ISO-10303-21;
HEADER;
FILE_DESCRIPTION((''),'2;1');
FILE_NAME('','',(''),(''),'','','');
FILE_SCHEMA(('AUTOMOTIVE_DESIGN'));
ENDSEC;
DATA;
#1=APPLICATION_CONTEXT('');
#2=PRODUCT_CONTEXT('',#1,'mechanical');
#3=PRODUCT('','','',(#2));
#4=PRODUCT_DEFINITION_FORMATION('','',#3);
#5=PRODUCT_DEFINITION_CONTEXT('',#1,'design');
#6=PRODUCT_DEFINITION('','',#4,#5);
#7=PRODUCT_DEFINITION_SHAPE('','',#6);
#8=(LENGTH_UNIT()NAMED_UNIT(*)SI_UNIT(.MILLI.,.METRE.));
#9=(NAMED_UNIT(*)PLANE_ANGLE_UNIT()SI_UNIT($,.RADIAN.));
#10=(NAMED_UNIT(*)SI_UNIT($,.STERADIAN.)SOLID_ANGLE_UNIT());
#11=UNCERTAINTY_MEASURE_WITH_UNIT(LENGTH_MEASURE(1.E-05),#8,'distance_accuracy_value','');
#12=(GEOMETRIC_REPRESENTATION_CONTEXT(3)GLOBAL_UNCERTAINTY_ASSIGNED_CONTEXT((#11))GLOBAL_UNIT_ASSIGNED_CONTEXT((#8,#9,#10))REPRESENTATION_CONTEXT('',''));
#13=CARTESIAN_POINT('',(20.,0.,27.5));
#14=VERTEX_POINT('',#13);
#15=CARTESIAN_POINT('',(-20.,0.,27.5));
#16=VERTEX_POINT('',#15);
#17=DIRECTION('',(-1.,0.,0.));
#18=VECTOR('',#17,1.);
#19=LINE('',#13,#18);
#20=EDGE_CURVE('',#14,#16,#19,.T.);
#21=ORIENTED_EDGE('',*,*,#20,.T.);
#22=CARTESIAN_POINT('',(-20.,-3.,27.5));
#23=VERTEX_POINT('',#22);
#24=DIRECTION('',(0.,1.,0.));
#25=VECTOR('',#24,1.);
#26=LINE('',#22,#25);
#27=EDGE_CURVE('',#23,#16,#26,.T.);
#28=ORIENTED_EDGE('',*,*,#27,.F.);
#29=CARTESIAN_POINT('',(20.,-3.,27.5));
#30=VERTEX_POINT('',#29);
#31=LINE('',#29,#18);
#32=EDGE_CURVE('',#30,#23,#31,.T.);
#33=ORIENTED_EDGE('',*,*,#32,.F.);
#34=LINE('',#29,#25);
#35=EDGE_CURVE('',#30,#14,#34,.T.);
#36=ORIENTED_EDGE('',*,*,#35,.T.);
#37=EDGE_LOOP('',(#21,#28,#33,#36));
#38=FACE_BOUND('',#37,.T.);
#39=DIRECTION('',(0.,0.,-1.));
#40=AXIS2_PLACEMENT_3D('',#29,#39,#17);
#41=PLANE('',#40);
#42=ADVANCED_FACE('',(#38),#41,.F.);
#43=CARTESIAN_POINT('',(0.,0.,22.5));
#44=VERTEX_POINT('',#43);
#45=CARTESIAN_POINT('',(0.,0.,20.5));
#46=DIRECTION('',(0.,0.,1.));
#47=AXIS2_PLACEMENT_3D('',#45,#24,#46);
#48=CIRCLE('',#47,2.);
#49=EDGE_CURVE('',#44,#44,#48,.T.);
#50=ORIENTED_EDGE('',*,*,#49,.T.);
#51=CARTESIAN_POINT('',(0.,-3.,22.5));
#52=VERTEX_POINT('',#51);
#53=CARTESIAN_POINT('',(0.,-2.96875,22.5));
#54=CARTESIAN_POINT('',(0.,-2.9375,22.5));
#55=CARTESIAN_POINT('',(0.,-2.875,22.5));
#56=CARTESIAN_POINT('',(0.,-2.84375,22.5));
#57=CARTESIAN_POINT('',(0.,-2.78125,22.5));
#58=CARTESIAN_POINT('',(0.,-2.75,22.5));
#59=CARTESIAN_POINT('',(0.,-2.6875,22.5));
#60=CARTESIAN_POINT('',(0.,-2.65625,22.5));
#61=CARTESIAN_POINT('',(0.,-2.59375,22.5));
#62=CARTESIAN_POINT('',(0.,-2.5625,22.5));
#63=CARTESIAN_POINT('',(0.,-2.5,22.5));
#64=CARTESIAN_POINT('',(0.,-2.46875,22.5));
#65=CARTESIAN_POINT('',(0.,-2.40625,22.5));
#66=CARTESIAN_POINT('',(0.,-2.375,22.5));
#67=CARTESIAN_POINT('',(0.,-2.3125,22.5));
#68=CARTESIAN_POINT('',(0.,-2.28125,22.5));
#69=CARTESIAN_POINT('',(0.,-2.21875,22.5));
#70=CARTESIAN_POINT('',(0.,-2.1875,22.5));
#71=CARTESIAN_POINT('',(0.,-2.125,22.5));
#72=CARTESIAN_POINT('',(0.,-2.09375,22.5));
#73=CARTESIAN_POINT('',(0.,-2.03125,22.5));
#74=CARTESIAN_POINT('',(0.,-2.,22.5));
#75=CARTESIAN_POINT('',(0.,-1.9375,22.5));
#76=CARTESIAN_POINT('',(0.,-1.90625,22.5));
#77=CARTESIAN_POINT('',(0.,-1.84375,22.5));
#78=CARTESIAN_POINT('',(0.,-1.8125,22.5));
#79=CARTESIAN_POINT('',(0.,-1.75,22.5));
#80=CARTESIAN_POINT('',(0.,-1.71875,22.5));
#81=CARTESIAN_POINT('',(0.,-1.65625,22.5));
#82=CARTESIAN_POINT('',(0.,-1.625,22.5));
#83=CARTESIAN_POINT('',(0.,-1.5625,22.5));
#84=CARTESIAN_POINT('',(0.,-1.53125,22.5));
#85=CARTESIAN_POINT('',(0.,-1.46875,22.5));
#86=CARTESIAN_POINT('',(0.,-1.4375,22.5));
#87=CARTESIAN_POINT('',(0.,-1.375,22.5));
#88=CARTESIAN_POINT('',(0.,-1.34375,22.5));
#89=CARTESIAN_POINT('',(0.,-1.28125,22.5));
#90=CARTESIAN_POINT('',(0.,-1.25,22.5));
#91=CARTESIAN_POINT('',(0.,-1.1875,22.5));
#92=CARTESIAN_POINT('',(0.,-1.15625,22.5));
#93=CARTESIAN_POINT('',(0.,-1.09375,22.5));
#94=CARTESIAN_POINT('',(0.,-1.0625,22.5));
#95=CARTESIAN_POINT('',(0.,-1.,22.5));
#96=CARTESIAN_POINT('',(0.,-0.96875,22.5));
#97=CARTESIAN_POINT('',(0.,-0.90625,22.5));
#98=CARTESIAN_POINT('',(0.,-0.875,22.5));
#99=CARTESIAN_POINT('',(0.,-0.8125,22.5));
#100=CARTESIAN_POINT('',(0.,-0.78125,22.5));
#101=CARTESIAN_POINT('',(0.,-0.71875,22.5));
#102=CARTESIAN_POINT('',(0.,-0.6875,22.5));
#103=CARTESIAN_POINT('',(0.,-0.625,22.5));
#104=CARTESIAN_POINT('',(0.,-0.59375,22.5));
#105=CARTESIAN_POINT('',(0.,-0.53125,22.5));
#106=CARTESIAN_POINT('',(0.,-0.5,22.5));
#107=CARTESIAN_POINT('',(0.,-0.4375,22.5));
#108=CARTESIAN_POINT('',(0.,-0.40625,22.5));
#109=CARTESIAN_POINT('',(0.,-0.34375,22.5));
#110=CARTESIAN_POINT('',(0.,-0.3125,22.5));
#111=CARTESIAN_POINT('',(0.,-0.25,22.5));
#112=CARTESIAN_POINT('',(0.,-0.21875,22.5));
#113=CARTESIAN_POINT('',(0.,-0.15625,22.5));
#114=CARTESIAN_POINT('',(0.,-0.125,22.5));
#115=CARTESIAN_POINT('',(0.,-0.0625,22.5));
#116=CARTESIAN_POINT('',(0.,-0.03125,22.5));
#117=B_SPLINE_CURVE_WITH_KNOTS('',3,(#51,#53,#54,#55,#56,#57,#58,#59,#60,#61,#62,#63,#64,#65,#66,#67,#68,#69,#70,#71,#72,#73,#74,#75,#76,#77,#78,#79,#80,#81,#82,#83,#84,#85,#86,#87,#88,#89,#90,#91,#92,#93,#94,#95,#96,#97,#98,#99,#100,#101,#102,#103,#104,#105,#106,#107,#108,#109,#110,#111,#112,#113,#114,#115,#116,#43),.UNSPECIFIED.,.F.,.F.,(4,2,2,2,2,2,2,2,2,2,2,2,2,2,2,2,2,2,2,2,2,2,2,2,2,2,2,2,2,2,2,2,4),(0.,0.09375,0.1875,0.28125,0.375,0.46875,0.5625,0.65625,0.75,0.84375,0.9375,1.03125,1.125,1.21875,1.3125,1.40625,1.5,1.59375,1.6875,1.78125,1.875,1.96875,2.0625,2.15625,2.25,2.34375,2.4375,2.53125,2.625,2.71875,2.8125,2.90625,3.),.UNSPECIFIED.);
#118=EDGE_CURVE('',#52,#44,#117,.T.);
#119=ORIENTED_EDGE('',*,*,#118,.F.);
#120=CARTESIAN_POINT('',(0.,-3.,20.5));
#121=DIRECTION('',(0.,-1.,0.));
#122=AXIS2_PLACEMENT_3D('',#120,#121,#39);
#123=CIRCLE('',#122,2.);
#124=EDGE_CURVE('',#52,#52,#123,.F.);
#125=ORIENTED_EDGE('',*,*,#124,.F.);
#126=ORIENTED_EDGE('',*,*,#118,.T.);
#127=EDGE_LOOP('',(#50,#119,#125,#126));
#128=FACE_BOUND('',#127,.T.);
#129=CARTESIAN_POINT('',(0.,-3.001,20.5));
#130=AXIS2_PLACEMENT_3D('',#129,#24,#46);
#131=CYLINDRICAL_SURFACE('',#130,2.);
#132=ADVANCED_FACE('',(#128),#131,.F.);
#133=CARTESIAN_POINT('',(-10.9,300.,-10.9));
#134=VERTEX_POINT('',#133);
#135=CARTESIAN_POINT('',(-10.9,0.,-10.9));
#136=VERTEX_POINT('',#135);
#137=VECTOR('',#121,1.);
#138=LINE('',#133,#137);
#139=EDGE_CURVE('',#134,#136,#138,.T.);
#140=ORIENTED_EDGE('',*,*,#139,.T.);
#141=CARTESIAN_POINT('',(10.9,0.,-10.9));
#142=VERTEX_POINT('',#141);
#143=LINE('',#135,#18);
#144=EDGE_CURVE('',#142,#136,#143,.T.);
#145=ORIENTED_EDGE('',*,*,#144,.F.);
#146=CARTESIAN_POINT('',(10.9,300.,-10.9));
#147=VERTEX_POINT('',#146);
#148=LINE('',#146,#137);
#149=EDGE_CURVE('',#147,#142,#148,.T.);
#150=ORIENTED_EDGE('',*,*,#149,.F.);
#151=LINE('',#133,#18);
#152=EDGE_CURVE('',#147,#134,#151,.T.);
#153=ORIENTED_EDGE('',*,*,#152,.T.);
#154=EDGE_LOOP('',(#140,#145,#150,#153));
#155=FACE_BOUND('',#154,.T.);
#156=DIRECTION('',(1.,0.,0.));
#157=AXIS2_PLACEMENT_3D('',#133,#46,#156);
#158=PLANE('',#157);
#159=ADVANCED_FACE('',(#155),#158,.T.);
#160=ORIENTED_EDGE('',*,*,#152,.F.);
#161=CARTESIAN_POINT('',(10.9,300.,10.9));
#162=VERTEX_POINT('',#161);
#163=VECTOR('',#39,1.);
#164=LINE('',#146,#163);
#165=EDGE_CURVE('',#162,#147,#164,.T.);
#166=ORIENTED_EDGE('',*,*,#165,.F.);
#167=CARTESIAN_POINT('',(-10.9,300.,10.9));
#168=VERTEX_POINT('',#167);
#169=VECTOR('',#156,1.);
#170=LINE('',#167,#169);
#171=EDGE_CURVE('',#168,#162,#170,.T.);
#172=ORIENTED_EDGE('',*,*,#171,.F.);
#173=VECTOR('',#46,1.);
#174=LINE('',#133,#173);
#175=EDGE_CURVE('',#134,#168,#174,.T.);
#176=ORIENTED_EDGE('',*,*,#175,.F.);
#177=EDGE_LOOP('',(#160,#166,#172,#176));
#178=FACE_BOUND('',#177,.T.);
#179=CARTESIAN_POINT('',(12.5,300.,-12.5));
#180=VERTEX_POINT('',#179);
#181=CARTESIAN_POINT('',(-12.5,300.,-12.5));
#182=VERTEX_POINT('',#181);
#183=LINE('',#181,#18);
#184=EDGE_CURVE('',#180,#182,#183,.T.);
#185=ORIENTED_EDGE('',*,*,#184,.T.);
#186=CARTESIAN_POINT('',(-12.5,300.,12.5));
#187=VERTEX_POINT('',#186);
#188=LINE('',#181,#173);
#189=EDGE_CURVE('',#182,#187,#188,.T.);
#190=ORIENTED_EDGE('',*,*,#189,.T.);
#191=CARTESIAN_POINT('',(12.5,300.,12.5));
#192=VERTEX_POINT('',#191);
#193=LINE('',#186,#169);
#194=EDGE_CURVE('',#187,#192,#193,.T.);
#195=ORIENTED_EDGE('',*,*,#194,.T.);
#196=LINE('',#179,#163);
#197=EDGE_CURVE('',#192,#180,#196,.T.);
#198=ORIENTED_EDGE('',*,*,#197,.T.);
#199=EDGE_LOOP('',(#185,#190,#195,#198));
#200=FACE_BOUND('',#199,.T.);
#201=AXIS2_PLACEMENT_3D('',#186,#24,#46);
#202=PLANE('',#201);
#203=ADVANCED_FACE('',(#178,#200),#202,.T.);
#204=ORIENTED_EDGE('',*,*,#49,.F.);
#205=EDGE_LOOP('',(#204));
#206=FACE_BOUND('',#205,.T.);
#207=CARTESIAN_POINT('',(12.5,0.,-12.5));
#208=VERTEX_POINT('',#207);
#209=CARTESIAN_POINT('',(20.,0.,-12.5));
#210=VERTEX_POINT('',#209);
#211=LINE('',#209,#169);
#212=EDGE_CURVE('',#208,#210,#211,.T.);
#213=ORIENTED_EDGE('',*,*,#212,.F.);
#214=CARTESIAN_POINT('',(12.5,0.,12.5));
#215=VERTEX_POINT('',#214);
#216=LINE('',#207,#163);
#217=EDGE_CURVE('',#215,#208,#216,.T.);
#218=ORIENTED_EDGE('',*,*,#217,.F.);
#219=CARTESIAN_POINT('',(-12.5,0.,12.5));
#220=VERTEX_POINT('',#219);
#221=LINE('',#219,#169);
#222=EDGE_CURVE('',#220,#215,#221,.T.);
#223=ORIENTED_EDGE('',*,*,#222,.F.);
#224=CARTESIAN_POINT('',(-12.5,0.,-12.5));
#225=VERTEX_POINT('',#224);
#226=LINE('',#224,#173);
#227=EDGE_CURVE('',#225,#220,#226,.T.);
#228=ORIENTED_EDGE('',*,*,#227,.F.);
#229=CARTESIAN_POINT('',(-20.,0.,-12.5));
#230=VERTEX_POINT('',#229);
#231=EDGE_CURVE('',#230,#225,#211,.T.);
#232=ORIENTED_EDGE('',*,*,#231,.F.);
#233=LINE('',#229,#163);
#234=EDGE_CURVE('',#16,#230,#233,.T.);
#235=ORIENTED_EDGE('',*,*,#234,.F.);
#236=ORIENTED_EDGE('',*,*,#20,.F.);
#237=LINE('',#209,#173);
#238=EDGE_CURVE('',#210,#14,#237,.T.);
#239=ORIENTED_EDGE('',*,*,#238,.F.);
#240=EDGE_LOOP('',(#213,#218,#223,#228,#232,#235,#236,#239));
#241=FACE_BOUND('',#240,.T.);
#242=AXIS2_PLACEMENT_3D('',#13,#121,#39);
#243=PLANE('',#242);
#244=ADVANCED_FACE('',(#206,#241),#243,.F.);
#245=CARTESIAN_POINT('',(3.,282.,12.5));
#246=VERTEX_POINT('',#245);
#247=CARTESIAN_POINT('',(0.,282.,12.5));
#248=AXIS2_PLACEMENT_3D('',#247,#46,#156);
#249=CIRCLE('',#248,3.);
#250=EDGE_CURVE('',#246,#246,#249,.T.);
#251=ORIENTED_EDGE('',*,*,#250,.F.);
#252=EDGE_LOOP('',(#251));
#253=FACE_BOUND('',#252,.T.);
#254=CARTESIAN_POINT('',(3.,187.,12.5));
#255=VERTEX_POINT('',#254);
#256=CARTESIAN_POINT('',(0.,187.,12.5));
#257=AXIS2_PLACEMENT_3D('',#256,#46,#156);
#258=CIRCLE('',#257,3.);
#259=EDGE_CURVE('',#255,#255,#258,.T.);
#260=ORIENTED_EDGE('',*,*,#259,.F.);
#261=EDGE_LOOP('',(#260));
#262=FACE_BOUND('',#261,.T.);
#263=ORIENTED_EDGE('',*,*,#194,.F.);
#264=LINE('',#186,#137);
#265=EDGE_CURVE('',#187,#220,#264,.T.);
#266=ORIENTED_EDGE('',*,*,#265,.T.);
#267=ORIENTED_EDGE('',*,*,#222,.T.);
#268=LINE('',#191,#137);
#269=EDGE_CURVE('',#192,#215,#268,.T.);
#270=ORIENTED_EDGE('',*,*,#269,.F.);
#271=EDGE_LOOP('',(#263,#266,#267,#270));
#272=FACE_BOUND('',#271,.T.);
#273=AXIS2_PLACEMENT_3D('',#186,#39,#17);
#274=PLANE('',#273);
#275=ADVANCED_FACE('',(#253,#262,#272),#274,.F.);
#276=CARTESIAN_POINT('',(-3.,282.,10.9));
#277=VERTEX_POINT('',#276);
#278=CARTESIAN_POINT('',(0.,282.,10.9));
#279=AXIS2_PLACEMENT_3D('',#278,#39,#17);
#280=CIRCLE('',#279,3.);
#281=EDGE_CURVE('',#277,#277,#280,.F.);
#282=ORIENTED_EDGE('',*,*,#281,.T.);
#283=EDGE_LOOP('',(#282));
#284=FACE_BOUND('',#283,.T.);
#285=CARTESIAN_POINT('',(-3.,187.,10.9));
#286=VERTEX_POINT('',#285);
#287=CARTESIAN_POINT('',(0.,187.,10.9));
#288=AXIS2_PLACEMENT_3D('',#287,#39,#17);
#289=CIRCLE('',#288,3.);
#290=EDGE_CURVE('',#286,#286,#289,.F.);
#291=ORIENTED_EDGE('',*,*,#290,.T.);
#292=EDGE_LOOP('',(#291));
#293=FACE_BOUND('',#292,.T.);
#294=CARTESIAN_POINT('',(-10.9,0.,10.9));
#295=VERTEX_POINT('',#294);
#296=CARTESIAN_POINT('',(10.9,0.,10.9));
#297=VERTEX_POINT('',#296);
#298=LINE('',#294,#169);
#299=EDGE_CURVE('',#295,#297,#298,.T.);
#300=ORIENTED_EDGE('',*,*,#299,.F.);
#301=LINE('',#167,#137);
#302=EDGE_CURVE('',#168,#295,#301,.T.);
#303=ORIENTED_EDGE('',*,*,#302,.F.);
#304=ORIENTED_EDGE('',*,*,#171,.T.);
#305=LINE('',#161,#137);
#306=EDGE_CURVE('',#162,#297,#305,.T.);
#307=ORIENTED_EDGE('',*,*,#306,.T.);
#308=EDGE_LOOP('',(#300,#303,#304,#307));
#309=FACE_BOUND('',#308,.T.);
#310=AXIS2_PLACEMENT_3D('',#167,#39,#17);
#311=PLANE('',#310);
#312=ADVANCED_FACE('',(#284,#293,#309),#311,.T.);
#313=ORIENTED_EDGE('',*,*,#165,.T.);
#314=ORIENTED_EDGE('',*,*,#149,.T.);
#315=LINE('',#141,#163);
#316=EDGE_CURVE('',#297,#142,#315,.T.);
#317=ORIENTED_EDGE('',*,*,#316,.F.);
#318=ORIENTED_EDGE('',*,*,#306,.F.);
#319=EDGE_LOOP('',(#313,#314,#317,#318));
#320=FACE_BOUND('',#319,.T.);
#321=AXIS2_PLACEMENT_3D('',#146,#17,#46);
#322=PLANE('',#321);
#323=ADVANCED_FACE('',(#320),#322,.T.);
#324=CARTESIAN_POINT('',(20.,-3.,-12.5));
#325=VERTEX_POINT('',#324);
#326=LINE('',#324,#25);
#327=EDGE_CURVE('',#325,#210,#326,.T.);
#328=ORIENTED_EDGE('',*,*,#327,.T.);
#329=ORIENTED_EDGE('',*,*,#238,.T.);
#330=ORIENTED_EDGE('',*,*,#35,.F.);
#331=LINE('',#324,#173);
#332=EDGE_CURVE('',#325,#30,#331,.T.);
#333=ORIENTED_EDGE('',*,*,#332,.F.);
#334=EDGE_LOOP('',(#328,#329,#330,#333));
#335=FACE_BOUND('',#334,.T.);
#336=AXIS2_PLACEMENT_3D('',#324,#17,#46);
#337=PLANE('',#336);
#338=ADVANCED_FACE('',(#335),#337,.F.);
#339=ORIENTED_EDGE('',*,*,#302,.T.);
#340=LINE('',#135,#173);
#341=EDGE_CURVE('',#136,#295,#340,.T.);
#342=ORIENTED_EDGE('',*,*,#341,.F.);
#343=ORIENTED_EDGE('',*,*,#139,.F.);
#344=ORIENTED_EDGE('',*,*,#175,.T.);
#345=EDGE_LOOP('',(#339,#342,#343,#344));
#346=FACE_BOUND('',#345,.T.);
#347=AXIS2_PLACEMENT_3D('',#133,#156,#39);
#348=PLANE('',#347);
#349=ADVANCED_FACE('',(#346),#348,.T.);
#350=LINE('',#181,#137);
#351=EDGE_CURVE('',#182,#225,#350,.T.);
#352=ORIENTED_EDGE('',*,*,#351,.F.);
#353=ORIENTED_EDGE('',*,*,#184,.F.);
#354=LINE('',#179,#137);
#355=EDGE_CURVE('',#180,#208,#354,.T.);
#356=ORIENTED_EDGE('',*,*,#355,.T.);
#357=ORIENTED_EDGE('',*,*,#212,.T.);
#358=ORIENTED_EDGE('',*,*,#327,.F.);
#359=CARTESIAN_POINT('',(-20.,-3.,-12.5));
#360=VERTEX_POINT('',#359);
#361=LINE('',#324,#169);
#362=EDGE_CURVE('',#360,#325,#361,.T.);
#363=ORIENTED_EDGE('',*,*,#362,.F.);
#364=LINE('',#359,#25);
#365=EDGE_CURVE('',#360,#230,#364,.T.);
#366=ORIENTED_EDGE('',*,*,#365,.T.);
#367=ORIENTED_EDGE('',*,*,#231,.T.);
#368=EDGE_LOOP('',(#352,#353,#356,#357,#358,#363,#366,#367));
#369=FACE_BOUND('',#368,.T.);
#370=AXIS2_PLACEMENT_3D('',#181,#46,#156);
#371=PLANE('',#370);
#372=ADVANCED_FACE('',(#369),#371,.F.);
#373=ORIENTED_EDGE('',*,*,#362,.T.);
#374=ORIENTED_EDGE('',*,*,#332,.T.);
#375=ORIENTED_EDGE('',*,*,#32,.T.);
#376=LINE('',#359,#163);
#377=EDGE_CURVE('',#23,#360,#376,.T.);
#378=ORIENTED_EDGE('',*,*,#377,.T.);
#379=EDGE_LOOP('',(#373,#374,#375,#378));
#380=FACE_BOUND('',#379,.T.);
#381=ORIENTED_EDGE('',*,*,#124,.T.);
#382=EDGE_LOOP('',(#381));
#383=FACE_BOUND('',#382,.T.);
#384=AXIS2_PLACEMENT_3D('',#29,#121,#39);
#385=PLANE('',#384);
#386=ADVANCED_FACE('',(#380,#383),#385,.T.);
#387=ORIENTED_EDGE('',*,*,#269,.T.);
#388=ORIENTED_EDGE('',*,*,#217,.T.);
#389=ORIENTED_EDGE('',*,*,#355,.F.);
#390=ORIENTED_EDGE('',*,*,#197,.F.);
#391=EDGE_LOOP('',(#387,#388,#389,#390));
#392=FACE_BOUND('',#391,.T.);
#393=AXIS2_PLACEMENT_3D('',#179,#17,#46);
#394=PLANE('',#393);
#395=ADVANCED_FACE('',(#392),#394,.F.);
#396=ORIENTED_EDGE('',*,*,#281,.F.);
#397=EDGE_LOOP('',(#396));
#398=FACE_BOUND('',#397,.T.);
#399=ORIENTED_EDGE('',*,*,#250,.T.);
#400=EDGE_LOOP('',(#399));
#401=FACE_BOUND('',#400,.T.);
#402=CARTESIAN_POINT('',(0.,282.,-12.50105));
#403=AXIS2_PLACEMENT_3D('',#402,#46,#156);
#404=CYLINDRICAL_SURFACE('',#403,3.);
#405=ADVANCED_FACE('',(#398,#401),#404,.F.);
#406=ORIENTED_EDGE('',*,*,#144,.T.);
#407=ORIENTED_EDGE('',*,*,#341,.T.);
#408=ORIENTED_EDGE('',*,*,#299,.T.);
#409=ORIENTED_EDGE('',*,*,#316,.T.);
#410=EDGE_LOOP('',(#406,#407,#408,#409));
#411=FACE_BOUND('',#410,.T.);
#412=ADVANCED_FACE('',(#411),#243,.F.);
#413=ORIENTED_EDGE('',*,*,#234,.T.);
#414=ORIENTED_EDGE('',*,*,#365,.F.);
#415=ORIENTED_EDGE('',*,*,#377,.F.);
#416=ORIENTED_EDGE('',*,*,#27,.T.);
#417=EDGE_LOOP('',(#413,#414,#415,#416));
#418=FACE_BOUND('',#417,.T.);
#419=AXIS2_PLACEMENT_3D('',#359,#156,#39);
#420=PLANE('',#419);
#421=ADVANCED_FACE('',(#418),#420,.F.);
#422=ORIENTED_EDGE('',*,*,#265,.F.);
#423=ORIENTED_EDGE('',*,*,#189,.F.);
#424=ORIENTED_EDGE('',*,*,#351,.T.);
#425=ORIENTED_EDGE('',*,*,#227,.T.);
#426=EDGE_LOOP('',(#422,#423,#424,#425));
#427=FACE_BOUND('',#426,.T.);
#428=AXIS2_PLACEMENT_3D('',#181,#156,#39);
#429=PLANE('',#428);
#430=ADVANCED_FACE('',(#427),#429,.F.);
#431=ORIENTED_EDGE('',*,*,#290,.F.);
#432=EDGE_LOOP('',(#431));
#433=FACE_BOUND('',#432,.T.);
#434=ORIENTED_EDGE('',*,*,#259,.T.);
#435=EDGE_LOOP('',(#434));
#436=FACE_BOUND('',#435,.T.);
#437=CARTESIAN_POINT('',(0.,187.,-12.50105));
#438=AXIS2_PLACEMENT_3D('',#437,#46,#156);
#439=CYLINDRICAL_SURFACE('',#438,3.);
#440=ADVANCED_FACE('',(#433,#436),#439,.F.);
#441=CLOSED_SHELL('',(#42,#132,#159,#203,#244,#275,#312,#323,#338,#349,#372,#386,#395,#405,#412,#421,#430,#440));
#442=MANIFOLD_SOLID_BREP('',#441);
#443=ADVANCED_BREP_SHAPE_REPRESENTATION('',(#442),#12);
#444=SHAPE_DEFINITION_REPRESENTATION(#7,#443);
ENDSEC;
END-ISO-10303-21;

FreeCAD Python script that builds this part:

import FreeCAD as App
import Part
import Sketcher
from FreeCAD import Vector
Q = App.Units.Quantity


def add_polygon(sketch, points):
    """Adds a closed chain of lines whose ends are joined by coincident constraints."""
    first, n = sketch.GeometryCount, len(points)
    for a, b in zip(points, points[1:] + points[:1]):
        sketch.addGeometry(Part.LineSegment(App.Vector(*a, 0), App.Vector(*b, 0)), False)
    for i in range(n):
        sketch.addConstraint(Sketcher.Constraint("Coincident", first + i, 2, first + (i + 1) % n, 1))

doc = App.newDocument("Part")
body = doc.addObject("PartDesign::Body", "Body")

# Sketch on XZ plane
sketch1 = body.newObject("Sketcher::SketchObject", "Sketch")
sketch1.AttachmentSupport = (doc.getObject("XZ_Plane"), [""])
sketch1.MapMode = "FlatFace"
add_polygon(sketch1, [(-12, -12), (-12, 12), (12, 12), (12, -12)])  # lines 0-3
add_polygon(sketch1, [(11, 11), (-11, 11), (-11, -11), (11, -11)])  # lines 4-7
sketch1.addConstraint(Sketcher.Constraint("Vertical", 0))
sketch1.addConstraint(Sketcher.Constraint("Horizontal", 1))
sketch1.addConstraint(Sketcher.Constraint("Vertical", 2))
sketch1.addConstraint(Sketcher.Constraint("Horizontal", 3))
sketch1.addConstraint(Sketcher.Constraint("Horizontal", 4))
sketch1.addConstraint(Sketcher.Constraint("Vertical", 5))
sketch1.addConstraint(Sketcher.Constraint("Horizontal", 6))
sketch1.addConstraint(Sketcher.Constraint("Vertical", 7))
sketch1.addConstraint(Sketcher.Constraint("Symmetric", 0, 2, 2, 2, -1, 1))
sketch1.addConstraint(Sketcher.Constraint("Symmetric", 4, 2, 6, 2, -1, 1))
sketch1.addConstraint(Sketcher.Constraint("Equal", 3, 0))
sketch1.addConstraint(Sketcher.Constraint("Equal", 6, 5))
sketch1.addConstraint(Sketcher.Constraint("DistanceX", 1, 1, 1, 2, Q("25 mm")))
sketch1.addConstraint(Sketcher.Constraint("DistanceX", 4, 2, 4, 1, Q("21.8 mm")))
pad1 = body.newObject("PartDesign::Pad", "Pad")
pad1.Profile = sketch1
pad1.Length = 300
pad1.Reversed = True

# Sketch on XZ plane
sketch2 = body.newObject("Sketcher::SketchObject", "Sketch001")
sketch2.AttachmentSupport = (doc.getObject("XZ_Plane"), [""])
sketch2.MapMode = "FlatFace"
add_polygon(sketch2, [(-20, 28), (-20, -12), (20, -12), (20, 28)])  # lines 0-3
sketch2.addConstraint(Sketcher.Constraint("Vertical", 0))
sketch2.addConstraint(Sketcher.Constraint("Horizontal", 1))
sketch2.addConstraint(Sketcher.Constraint("Vertical", 2))
sketch2.addConstraint(Sketcher.Constraint("Horizontal", 3))
sketch2.addConstraint(Sketcher.Constraint("Equal", 3, 0))
sketch2.addConstraint(Sketcher.Constraint("DistanceX", 1, 1, 1, 2, Q("40 mm")))
sketch2.addConstraint(Sketcher.Constraint("DistanceX", 0, 2, -1, 1, Q("20 mm")))
sketch2.addConstraint(Sketcher.Constraint("DistanceY", 0, 2, -1, 1, Q("12.5 mm")))
pad2 = body.newObject("PartDesign::Pad", "Pad001")
pad2.Profile = sketch2
pad2.Length = 3

# Sketch on XY plane
sketch3 = body.newObject("Sketcher::SketchObject", "Sketch002")
sketch3.AttachmentSupport = (doc.getObject("XY_Plane"), [""])
sketch3.MapMode = "FlatFace"
sketch3.AttachmentOffset = App.Placement(Vector(0, 0, 12.5), App.Rotation())
sketch3.addGeometry(Part.Circle(Vector(0, 187, 0), Vector(0, 0, 1), 3), False)
sketch3.addConstraint(Sketcher.Constraint("PointOnObject", 0, 3, -2))
sketch3.addConstraint(Sketcher.Constraint("Diameter", 0, Q("6 mm")))
sketch3.addConstraint(Sketcher.Constraint("DistanceY", -1, 1, 0, 3, Q("187 mm")))
pocket1 = body.newObject("PartDesign::Pocket", "Pocket")
pocket1.Profile = sketch3
pocket1.Type = "UpToFirst"

# Sketch on XY plane
sketch4 = body.newObject("Sketcher::SketchObject", "Sketch003")
sketch4.AttachmentSupport = (doc.getObject("XY_Plane"), [""])
sketch4.MapMode = "FlatFace"
sketch4.AttachmentOffset = App.Placement(Vector(0, 0, 12.5), App.Rotation())
sketch4.addGeometry(Part.Circle(Vector(0, 282, 0), Vector(0, 0, 1), 3), False)
sketch4.addConstraint(Sketcher.Constraint("PointOnObject", 0, 3, -2))
sketch4.addConstraint(Sketcher.Constraint("Diameter", 0, Q("6 mm")))
sketch4.addConstraint(Sketcher.Constraint("DistanceY", -1, 1, 0, 3, Q("282 mm")))
pocket2 = body.newObject("PartDesign::Pocket", "Pocket001")
pocket2.Profile = sketch4
pocket2.Type = "UpToFirst"

# Sketch on XZ plane
sketch5 = body.newObject("Sketcher::SketchObject", "Sketch004")
sketch5.AttachmentSupport = (doc.getObject("XZ_Plane"), [""])
sketch5.MapMode = "FlatFace"
sketch5.addGeometry(Part.Circle(Vector(0, 20.5, 0), Vector(0, 0, 1), 2), False)
sketch5.addConstraint(Sketcher.Constraint("PointOnObject", 0, 3, -2))
sketch5.addConstraint(Sketcher.Constraint("Diameter", 0, Q("4 mm")))
sketch5.addConstraint(Sketcher.Constraint("DistanceY", -1, 1, 0, 3, Q("20.5 mm")))
pocket3 = body.newObject("PartDesign::Pocket", "Pocket002")
pocket3.Profile = sketch5
pocket3.Type = "UpToFirst"
pocket3.Reversed = True

doc.recompute()
